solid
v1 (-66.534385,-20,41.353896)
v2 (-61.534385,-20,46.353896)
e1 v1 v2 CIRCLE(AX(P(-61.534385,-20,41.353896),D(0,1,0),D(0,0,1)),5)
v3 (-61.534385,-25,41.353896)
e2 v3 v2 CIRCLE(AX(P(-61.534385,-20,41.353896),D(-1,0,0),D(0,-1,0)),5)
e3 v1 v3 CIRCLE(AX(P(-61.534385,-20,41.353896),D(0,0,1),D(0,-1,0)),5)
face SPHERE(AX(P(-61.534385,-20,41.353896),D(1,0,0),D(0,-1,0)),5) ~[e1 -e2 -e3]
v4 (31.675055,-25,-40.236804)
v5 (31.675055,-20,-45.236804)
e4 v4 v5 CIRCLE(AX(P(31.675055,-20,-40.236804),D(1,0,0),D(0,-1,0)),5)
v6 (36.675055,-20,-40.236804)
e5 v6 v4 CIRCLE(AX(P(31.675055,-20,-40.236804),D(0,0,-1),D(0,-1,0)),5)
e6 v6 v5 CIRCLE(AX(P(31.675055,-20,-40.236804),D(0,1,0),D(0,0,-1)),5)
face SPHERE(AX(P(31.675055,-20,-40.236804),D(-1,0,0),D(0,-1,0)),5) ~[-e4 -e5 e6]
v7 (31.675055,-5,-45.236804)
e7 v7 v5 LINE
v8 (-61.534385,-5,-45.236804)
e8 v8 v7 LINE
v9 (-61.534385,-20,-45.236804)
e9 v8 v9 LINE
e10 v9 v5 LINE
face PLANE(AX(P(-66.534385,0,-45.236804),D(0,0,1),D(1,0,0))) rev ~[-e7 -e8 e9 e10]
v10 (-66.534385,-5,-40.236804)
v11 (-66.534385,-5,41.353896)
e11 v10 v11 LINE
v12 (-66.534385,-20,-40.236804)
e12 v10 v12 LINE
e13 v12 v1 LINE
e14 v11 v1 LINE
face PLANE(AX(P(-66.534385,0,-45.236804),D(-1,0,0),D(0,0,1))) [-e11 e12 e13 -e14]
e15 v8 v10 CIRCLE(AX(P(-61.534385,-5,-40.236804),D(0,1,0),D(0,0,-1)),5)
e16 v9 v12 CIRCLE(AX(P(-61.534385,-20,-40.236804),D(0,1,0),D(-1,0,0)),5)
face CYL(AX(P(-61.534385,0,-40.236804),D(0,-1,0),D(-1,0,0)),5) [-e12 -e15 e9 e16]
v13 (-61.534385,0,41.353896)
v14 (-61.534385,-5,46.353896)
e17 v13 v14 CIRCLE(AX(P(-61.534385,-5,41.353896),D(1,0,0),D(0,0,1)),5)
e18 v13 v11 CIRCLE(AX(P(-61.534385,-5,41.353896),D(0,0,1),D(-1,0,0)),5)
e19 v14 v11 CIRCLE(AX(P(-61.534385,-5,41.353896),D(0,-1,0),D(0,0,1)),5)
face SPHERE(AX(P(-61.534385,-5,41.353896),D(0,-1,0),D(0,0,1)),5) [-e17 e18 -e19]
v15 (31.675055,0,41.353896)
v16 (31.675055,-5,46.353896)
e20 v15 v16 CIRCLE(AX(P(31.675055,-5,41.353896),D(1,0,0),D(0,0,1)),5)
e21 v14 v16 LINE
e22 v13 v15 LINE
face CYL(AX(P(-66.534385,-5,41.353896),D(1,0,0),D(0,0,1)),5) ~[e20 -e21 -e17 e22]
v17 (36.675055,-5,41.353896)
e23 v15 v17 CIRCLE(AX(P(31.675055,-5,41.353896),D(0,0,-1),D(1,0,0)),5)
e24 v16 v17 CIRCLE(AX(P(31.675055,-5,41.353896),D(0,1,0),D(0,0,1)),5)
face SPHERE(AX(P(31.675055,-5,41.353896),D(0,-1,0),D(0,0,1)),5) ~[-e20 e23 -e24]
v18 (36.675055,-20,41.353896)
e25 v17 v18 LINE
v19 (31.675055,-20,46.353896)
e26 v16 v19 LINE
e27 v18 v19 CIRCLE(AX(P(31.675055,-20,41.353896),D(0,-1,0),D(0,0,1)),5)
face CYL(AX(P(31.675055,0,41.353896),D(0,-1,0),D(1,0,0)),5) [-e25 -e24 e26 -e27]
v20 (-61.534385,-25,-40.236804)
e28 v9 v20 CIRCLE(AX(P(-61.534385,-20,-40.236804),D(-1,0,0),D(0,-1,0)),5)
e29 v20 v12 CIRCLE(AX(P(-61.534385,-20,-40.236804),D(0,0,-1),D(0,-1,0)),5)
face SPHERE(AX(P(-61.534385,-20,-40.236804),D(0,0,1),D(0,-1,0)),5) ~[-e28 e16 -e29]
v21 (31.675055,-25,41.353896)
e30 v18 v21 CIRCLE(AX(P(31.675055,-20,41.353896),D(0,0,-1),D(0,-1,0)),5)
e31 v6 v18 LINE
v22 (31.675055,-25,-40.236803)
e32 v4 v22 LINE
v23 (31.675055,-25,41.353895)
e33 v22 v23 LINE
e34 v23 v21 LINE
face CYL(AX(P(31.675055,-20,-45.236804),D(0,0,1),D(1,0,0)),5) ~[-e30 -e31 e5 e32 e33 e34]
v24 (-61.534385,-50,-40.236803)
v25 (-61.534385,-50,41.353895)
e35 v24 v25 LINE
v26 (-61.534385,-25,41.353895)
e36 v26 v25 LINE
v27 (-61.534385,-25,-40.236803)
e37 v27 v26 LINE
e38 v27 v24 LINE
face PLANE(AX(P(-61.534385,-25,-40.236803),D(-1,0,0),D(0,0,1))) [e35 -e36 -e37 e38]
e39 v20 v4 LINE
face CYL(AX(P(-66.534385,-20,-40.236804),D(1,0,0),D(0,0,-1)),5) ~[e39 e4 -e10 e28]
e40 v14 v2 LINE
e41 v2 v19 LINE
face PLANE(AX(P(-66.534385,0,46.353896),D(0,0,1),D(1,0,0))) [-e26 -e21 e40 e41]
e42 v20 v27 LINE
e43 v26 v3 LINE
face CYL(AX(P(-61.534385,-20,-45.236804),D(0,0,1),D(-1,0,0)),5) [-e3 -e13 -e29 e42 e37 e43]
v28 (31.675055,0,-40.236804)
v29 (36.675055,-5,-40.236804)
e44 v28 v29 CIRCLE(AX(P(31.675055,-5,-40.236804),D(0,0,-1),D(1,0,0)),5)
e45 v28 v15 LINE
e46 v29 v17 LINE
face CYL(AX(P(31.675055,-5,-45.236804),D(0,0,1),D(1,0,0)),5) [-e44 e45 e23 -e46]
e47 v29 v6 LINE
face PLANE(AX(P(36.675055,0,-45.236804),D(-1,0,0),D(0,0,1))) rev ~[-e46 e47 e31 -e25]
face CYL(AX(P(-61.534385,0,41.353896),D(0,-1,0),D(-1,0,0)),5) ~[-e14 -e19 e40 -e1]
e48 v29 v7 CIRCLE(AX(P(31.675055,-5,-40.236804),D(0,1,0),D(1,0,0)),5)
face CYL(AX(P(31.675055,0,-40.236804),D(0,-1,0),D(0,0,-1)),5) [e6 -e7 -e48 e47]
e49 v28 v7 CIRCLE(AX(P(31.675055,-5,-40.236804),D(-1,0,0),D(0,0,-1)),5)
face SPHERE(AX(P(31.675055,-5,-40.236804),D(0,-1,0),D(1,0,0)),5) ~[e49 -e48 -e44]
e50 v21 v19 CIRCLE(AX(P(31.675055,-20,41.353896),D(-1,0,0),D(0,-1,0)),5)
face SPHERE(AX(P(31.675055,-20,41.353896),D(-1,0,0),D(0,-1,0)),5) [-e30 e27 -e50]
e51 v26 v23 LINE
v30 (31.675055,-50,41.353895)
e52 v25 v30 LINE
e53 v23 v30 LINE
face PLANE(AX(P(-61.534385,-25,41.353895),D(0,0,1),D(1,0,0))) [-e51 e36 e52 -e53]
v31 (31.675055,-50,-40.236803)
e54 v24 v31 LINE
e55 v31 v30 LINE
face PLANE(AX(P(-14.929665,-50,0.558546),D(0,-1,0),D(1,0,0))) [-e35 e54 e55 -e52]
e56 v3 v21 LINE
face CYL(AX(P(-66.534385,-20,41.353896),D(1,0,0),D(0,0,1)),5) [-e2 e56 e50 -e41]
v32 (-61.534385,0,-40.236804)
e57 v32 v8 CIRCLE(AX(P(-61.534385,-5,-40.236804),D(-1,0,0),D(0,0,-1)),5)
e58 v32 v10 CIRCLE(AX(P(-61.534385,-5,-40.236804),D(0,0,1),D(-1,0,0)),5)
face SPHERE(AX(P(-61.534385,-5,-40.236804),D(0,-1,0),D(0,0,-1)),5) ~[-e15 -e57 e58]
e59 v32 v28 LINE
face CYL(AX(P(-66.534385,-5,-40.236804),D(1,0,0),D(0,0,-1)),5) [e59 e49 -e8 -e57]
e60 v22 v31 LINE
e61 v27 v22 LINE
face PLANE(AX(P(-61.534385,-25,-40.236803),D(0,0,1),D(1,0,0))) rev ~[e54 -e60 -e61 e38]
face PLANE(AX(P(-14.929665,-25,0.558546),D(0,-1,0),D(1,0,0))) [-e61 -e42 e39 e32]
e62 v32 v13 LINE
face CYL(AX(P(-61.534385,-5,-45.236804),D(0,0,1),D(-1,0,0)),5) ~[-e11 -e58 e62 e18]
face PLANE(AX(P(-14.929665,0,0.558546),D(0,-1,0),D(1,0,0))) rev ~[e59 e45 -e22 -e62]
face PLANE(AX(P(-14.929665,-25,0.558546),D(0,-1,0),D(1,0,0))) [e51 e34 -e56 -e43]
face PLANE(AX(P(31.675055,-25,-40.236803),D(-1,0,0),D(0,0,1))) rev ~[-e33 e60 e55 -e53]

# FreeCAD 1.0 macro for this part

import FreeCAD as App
import Part
import Sketcher
from FreeCAD import Vector
Q = App.Units.Quantity


def add_polygon(sketch, points):
    """Adds a closed chain of lines whose ends are joined by coincident constraints."""
    first, n = sketch.GeometryCount, len(points)
    for a, b in zip(points, points[1:] + points[:1]):
        sketch.addGeometry(Part.LineSegment(App.Vector(*a, 0), App.Vector(*b, 0)), False)
    for i in range(n):
        sketch.addConstraint(Sketcher.Constraint("Coincident", first + i, 2, first + (i + 1) % n, 1))

doc = App.newDocument("Part")
body = doc.addObject("PartDesign::Body", "Body")

sketch1 = body.newObject("Sketcher::SketchObject", "Sketch")
sketch1.AttachmentSupport = (doc.getObject("XZ_Plane"), [""])
sketch1.MapMode = "FlatFace"
add_polygon(sketch1, [(-66.534385, 46.353896), (-66.534385, -45.236804), (36.675055, -45.236804), (36.675055, 46.353896)])
sketch1.addConstraint([
    Sketcher.Constraint("Vertical", 0),
    Sketcher.Constraint("Horizontal", 1),
    Sketcher.Constraint("Vertical", 2),
    Sketcher.Constraint("Horizontal", 3),
    Sketcher.Constraint("DistanceY", 0, 2, 0, 1, Q("91.590699 mm")),
    Sketcher.Constraint("DistanceX", 1, 1, 1, 2, Q("103.20944 mm")),
    Sketcher.Constraint("DistanceX", 0, 2, -1, 1, Q("66.534385 mm")),
    Sketcher.Constraint("DistanceY", 0, 2, -1, 1, Q("45.236804 mm")),
])
pad1 = body.newObject("PartDesign::Pad", "Pad")
pad1.Profile = sketch1
pad1.Length = 25
doc.recompute()

fillet = body.newObject("PartDesign::Fillet", "Fillet")
fillet.Base = (pad1, ["Edge1"])
fillet.UseAllEdges = True
fillet.Radius = 5

sketch2 = body.newObject("Sketcher::SketchObject", "Sketch001")
sketch2.AttachmentSupport = (doc.getObject("XZ_Plane"), [""])
sketch2.MapMode = "FlatFace"
sketch2.AttachmentOffset = App.Placement(Vector(0, 0, 25), App.Rotation())
add_polygon(sketch2, [(-61.534385, 41.353895), (-61.534385, -40.236803), (31.675055, -40.236803), (31.675055, 41.353895)])
sketch2.addConstraint([
    Sketcher.Constraint("Vertical", 0),
    Sketcher.Constraint("Horizontal", 1),
    Sketcher.Constraint("Vertical", 2),
    Sketcher.Constraint("Horizontal", 3),
    Sketcher.Constraint("DistanceY", 0, 2, 0, 1, Q("81.590698 mm")),
    Sketcher.Constraint("DistanceX", 1, 1, 1, 2, Q("93.20944 mm")),
    Sketcher.Constraint("DistanceX", 0, 2, -1, 1, Q("61.534385 mm")),
    Sketcher.Constraint("DistanceY", 0, 2, -1, 1, Q("40.236803 mm")),
])
pad2 = body.newObject("PartDesign::Pad", "Pad001")
pad2.Profile = sketch2
pad2.Length = 25

doc.recompute()
